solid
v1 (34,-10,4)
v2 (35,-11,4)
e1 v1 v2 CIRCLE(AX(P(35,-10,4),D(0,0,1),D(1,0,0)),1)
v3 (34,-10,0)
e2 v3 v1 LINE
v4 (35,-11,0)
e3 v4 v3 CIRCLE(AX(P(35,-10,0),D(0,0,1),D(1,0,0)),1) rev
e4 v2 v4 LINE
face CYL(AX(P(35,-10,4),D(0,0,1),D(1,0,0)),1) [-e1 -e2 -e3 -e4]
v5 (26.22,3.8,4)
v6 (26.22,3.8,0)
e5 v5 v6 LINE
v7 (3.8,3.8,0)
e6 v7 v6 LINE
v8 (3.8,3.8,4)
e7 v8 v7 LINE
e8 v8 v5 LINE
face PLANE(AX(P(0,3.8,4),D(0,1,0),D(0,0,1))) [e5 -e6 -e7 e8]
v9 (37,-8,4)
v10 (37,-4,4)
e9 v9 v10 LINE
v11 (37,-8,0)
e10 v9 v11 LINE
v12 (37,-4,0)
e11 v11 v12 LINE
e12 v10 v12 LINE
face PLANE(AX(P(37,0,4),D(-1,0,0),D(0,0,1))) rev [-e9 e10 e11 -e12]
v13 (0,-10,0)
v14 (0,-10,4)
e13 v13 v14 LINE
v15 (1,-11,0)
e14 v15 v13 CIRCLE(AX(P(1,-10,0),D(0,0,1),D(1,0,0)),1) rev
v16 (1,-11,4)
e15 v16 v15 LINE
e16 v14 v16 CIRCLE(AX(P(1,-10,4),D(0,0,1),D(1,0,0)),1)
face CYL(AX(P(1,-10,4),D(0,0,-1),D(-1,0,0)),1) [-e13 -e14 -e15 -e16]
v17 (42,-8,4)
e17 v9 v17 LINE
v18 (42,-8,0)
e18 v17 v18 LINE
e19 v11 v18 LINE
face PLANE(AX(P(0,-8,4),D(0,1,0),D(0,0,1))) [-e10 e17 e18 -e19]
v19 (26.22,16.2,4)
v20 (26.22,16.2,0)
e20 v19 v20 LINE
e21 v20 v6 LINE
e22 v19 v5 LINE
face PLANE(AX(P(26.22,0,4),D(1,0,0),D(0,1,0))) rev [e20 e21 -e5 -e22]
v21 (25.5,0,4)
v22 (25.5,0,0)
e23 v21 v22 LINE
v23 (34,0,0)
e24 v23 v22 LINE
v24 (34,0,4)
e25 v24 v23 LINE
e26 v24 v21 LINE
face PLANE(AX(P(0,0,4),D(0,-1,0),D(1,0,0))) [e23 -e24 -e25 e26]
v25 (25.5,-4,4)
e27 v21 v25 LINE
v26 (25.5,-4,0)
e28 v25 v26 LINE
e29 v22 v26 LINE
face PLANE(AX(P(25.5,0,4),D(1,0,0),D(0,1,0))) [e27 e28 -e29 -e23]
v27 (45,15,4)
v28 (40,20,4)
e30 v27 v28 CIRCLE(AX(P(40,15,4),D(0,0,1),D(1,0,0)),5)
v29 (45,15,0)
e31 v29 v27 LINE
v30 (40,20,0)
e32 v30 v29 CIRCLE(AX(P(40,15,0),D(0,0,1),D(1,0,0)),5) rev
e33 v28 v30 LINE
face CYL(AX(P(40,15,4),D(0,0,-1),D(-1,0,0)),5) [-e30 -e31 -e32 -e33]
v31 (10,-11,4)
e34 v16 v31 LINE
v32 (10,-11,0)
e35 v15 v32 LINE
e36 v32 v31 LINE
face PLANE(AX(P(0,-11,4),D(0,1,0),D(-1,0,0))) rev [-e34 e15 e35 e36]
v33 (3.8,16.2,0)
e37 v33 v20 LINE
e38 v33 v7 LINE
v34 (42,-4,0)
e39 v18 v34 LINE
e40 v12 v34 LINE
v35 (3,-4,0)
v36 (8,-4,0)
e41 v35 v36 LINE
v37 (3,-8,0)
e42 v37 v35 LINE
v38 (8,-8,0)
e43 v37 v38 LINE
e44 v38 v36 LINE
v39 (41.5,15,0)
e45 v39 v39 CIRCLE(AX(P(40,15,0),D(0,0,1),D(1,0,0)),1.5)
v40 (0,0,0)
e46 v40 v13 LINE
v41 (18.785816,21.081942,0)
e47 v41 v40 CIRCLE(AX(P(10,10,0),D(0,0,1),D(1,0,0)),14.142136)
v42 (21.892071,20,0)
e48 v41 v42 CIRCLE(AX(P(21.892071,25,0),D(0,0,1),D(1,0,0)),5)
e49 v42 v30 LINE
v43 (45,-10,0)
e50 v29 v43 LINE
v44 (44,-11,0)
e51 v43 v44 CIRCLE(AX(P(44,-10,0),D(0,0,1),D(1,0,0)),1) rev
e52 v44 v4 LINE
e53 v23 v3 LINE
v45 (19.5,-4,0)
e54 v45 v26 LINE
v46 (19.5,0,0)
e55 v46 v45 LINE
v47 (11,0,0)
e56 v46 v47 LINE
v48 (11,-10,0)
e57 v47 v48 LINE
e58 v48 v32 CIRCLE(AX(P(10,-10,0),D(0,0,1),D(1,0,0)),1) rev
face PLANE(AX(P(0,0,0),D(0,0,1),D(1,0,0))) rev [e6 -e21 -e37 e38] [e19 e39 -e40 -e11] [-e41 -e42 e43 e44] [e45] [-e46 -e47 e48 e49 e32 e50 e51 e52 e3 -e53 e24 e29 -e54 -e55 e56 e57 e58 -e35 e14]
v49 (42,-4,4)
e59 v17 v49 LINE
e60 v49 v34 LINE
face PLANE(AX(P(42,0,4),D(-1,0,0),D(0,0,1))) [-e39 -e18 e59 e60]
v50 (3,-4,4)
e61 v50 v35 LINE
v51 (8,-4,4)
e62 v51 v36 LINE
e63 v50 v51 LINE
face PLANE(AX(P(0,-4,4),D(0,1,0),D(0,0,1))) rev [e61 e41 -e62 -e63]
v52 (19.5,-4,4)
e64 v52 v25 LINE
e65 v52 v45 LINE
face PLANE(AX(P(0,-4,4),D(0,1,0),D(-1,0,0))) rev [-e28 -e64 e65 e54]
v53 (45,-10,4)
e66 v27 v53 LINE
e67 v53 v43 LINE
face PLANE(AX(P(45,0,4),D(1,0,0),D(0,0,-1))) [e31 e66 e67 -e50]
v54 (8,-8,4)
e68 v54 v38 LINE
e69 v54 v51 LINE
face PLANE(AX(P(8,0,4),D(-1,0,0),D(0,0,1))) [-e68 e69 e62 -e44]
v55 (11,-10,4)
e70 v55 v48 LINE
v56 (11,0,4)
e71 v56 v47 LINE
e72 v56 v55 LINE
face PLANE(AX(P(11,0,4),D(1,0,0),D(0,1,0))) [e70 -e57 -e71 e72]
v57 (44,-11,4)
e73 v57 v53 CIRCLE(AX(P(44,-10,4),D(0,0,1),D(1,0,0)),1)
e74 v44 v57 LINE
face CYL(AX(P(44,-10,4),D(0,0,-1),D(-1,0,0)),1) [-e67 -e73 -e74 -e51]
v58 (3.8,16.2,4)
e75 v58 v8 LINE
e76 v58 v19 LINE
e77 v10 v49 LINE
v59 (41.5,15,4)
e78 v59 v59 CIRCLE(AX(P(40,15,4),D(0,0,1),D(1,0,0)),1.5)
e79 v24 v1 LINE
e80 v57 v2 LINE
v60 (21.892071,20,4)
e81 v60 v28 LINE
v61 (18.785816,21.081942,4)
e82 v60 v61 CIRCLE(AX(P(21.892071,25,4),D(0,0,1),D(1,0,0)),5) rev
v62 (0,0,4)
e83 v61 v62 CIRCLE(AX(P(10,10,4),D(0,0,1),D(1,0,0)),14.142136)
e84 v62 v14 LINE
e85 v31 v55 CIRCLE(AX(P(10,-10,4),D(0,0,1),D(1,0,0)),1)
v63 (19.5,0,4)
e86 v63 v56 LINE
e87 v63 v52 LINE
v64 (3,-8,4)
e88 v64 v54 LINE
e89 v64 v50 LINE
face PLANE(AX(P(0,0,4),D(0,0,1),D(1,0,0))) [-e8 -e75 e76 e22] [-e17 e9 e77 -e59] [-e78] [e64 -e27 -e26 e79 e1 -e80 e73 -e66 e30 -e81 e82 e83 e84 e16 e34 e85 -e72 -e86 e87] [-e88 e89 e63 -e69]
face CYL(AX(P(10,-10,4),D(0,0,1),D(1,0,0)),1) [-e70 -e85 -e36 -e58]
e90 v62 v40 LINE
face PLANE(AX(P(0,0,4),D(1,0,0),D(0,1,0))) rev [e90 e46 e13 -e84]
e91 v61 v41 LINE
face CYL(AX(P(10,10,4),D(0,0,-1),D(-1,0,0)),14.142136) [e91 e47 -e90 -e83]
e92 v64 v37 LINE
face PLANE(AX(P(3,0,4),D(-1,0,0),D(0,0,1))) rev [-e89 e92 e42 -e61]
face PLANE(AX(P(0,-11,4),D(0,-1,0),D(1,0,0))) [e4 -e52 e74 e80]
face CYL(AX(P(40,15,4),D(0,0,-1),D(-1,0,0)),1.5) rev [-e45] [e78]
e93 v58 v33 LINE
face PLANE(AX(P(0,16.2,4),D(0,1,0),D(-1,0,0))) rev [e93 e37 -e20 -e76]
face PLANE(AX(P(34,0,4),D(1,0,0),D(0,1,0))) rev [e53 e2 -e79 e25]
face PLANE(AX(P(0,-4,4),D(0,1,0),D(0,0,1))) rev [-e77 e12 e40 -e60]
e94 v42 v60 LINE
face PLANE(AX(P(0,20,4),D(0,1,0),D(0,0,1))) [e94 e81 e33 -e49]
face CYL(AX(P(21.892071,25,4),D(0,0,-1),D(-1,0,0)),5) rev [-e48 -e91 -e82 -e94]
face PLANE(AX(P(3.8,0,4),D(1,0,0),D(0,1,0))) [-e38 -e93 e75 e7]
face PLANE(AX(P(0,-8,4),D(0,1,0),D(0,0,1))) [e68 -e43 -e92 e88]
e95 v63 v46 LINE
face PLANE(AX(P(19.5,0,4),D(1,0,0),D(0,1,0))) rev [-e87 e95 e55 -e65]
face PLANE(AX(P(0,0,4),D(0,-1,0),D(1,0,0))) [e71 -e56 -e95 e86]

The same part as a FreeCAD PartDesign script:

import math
import FreeCAD as App
import Part
import Sketcher
from FreeCAD import Vector


def edges_at(feature, points):
    """Names of the edges that pass closest to the given points."""
    edges = feature.Shape.Edges
    near = lambda p: min(range(len(edges)), key=lambda i: edges[i].distToShape(Part.Vertex(*p))[0])
    return sorted({f"Edge{near(p) + 1}" for p in points})


def add_polygon(sketch, points):
    """Adds a closed chain of lines whose ends are joined by coincident constraints."""
    first, n = sketch.GeometryCount, len(points)
    for a, b in zip(points, points[1:] + points[:1]):
        sketch.addGeometry(Part.LineSegment(App.Vector(*a, 0), App.Vector(*b, 0)), False)
    for i in range(n):
        sketch.addConstraint(Sketcher.Constraint("Coincident", first + i, 2, first + (i + 1) % n, 1))

doc = App.newDocument("Part")
body = doc.addObject("PartDesign::Body", "Body")

# Sketch on XY plane
sketch1 = body.newObject("Sketcher::SketchObject", "Sketch")
sketch1.AttachmentSupport = (doc.getObject("XY_Plane"), [""])
sketch1.MapMode = "FlatFace"
sketch1.addGeometry(Part.LineSegment(Vector(0, 0, 0), Vector(0, -11, 0)), False)  # 0
sketch1.addGeometry(Part.LineSegment(Vector(0, -11, 0), Vector(11, -11, 0)), False)  # 1
sketch1.addGeometry(Part.LineSegment(Vector(11, -11, 0), Vector(11, 0, 0)), False)  # 2
sketch1.addGeometry(Part.LineSegment(Vector(11, 0, 0), Vector(19.5, 0, 0)), False)  # 3
sketch1.addGeometry(Part.LineSegment(Vector(19.5, 0, 0), Vector(19.5, -4, 0)), False)  # 4
sketch1.addGeometry(Part.LineSegment(Vector(19.5, -4, 0), Vector(25.5, -4, 0)), False)  # 5
sketch1.addGeometry(Part.LineSegment(Vector(25.5, -4, 0), Vector(25.5, 0, 0)), False)  # 6
sketch1.addGeometry(Part.LineSegment(Vector(25.5, 0, 0), Vector(34, 0, 0)), False)  # 7
sketch1.addGeometry(Part.LineSegment(Vector(34, 0, 0), Vector(34, -11, 0)), False)  # 8
sketch1.addGeometry(Part.LineSegment(Vector(34, -11, 0), Vector(45, -11, 0)), False)  # 9
sketch1.addGeometry(Part.LineSegment(Vector(45, -11, 0), Vector(45, 20, 0)), False)  # 10
sketch1.addGeometry(Part.LineSegment(Vector(45, 20, 0), Vector(20, 20, 0)), False)  # 11
sketch1.addGeometry(Part.ArcOfCircle(Part.Circle(Vector(10, 10, 0), Vector(0, 0, 1), 14.1), math.radians(45), math.radians(225)), False)  # 12
add_polygon(sketch1, [(8, -8), (3, -8), (3, -4), (8, -4)])  # lines 13-16
add_polygon(sketch1, [(42, -8), (37, -8), (37, -4), (42, -4)])  # lines 17-20
add_polygon(sketch1, [(26.2, 3.8), (3.8, 3.8), (3.8, 16.2), (26.2, 16.2)])  # lines 21-24
sketch1.addGeometry(Part.Circle(Vector(40, 15, 0), Vector(0, 0, 1), 1.5), False)  # 25
sketch1.addConstraint(Sketcher.Constraint("Coincident", 0, 2, 1, 1))
sketch1.addConstraint(Sketcher.Constraint("Coincident", 1, 2, 2, 1))
sketch1.addConstraint(Sketcher.Constraint("Coincident", 2, 2, 3, 1))
sketch1.addConstraint(Sketcher.Constraint("Coincident", 3, 2, 4, 1))
sketch1.addConstraint(Sketcher.Constraint("Coincident", 4, 2, 5, 1))
sketch1.addConstraint(Sketcher.Constraint("Coincident", 5, 2, 6, 1))
sketch1.addConstraint(Sketcher.Constraint("Coincident", 6, 2, 7, 1))
sketch1.addConstraint(Sketcher.Constraint("Coincident", 7, 2, 8, 1))
sketch1.addConstraint(Sketcher.Constraint("Coincident", 8, 2, 9, 1))
sketch1.addConstraint(Sketcher.Constraint("Coincident", 9, 2, 10, 1))
sketch1.addConstraint(Sketcher.Constraint("Coincident", 10, 2, 11, 1))
sketch1.addConstraint(Sketcher.Constraint("Coincident", 11, 2, 12, 1))
sketch1.addConstraint(Sketcher.Constraint("Coincident", 12, 2, 0, 1))
sketch1.addConstraint(Sketcher.Constraint("Vertical", 0))
sketch1.addConstraint(Sketcher.Constraint("Horizontal", 1))
sketch1.addConstraint(Sketcher.Constraint("Vertical", 2))
sketch1.addConstraint(Sketcher.Constraint("Horizontal", 3))
sketch1.addConstraint(Sketcher.Constraint("Vertical", 4))
sketch1.addConstraint(Sketcher.Constraint("Horizontal", 5))
sketch1.addConstraint(Sketcher.Constraint("Vertical", 6))
sketch1.addConstraint(Sketcher.Constraint("Horizontal", 7))
sketch1.addConstraint(Sketcher.Constraint("Vertical", 8))
sketch1.addConstraint(Sketcher.Constraint("Horizontal", 9))
sketch1.addConstraint(Sketcher.Constraint("Vertical", 10))
sketch1.addConstraint(Sketcher.Constraint("Horizontal", 11))
sketch1.addConstraint(Sketcher.Constraint("Horizontal", 13))
sketch1.addConstraint(Sketcher.Constraint("Vertical", 14))
sketch1.addConstraint(Sketcher.Constraint("Horizontal", 15))
sketch1.addConstraint(Sketcher.Constraint("Vertical", 16))
sketch1.addConstraint(Sketcher.Constraint("Horizontal", 17))
sketch1.addConstraint(Sketcher.Constraint("Vertical", 18))
sketch1.addConstraint(Sketcher.Constraint("Horizontal", 19))
sketch1.addConstraint(Sketcher.Constraint("Vertical", 20))
sketch1.addConstraint(Sketcher.Constraint("Horizontal", 21))
sketch1.addConstraint(Sketcher.Constraint("Vertical", 22))
sketch1.addConstraint(Sketcher.Constraint("Horizontal", 23))
sketch1.addConstraint(Sketcher.Constraint("Vertical", 24))
sketch1.addConstraint(Sketcher.Constraint("Coincident", 12, 2, -1, 1))
sketch1.addConstraint(Sketcher.Constraint("PointOnObject", 2, 2, -1))
sketch1.addConstraint(Sketcher.Constraint("PointOnObject", 6, 2, -1))
sketch1.addConstraint(Sketcher.Constraint("Horizontal", 1, 2, 8, 2))
sketch1.addConstraint(Sketcher.Constraint("Horizontal", 5, 2, 14, 2))
sketch1.addConstraint(Sketcher.Constraint("Horizontal", 16, 2, 17, 2))
sketch1.addConstraint(Sketcher.Constraint("Horizontal", 15, 2, 18, 2))
sketch1.addConstraint(Sketcher.Constraint("Equal", 3, 7))
sketch1.addConstraint(Sketcher.Constraint("Equal", 1, 9))
sketch1.addConstraint(Sketcher.Constraint("Equal", 15, 17))
sketch1.addConstraint(Sketcher.Constraint("Equal", 9, 0))
sketch1.addConstraint(Sketcher.Constraint("Equal", 6, 14))
sketch1.addConstraint(Sketcher.Constraint("Diameter", 25, 3.0))
sketch1.addConstraint(Sketcher.Constraint("DistanceX", 1, 1, 1, 2, 11.0))
sketch1.addConstraint(Sketcher.Constraint("DistanceX", 5, 1, 5, 2, 6.0))
sketch1.addConstraint(Sketcher.Constraint("DistanceX", 11, 2, 11, 1, 25.0))
sketch1.addConstraint(Sketcher.Constraint("DistanceX", 13, 2, 13, 1, 5.0))
sketch1.addConstraint(Sketcher.Constraint("DistanceY", 4, 2, 4, 1, 4.0))
sketch1.addConstraint(Sketcher.Constraint("DistanceY", 10, 1, 10, 2, 31.0))
sketch1.addConstraint(Sketcher.Constraint("DistanceX", 3, 1, 3, 2, 8.5))
sketch1.addConstraint(Sketcher.Constraint("DistanceY", 22, 1, 22, 2, 12.4))
sketch1.addConstraint(Sketcher.Constraint("DistanceX", -1, 1, 12, 3, 10.0))
sketch1.addConstraint(Sketcher.Constraint("DistanceX", -1, 1, 25, 3, 40.0))
sketch1.addConstraint(Sketcher.Constraint("DistanceY", -1, 1, 25, 3, 15.0))
sketch1.addConstraint(Sketcher.Constraint("DistanceX", -1, 1, 13, 2, 3.0))
sketch1.addConstraint(Sketcher.Constraint("DistanceX", -1, 1, 17, 2, 37.0))
sketch1.addConstraint(Sketcher.Constraint("DistanceX", 21, 2, 21, 1, 22.42))
sketch1.addConstraint(Sketcher.Constraint("DistanceX", -1, 1, 21, 2, 3.8))
sketch1.addConstraint(Sketcher.Constraint("DistanceY", -1, 1, 21, 2, 3.8))
pad1 = body.newObject("PartDesign::Pad", "Pad")
pad1.Profile = sketch1
pad1.Length = 4
doc.recompute()

fillet = body.newObject("PartDesign::Fillet", "Fillet")
fillet.Base = (pad1, edges_at(pad1, [
    (45, -11, 2),
    (34, -11, 2),
    (11, -11, 2),
    (0, -11, 2),
]))
fillet.Radius = 1
doc.recompute()

fillet2 = body.newObject("PartDesign::Fillet", "Fillet001")
fillet2.Base = (fillet, edges_at(fillet, [(45, 20, 2), (20, 20, 2)]))
fillet2.Radius = 5

doc.recompute()
